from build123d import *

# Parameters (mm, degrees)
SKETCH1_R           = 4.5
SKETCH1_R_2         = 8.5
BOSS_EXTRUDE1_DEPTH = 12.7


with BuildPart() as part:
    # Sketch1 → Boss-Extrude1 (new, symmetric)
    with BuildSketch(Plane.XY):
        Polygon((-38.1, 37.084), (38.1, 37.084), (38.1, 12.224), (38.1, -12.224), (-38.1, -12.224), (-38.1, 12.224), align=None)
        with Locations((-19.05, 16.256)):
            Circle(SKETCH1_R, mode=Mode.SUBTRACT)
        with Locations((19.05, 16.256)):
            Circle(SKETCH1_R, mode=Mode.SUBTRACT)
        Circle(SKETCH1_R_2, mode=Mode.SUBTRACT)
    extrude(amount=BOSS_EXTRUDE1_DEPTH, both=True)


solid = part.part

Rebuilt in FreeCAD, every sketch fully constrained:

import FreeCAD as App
import Part
import Sketcher
from FreeCAD import Vector

doc = App.newDocument("Part")
body = doc.addObject("PartDesign::Body", "Body")

# Sketch on XY plane
sketch1 = body.newObject("Sketcher::SketchObject", "Sketch")
sketch1.AttachmentSupport = (doc.getObject("XY_Plane"), [""])
sketch1.MapMode = "FlatFace"
sketch1.addGeometry(Part.LineSegment(Vector(38.1, 37.1, 0), Vector(-38.1, 37.1, 0)), False)
sketch1.addGeometry(Part.LineSegment(Vector(-38.1, 37.1, 0), Vector(-38.1, -12.2, 0)), False)
sketch1.addGeometry(Part.LineSegment(Vector(-38.1, -12.2, 0), Vector(38.1, -12.2, 0)), False)
sketch1.addGeometry(Part.LineSegment(Vector(38.1, -12.2, 0), Vector(38.1, 37.1, 0)), False)
sketch1.addGeometry(Part.Circle(Vector(0, 0, 0), Vector(0, 0, 1), 8.5), False)
sketch1.addGeometry(Part.Circle(Vector(19.1, 16.3, 0), Vector(0, 0, 1), 4.5), False)
sketch1.addGeometry(Part.Circle(Vector(-19.1, 16.3, 0), Vector(0, 0, 1), 4.5), False)
sketch1.addConstraint(Sketcher.Constraint("Coincident", 0, 2, 1, 1))
sketch1.addConstraint(Sketcher.Constraint("Coincident", 1, 2, 2, 1))
sketch1.addConstraint(Sketcher.Constraint("Coincident", 2, 2, 3, 1))
sketch1.addConstraint(Sketcher.Constraint("Coincident", 3, 2, 0, 1))
sketch1.addConstraint(Sketcher.Constraint("Horizontal", 0))
sketch1.addConstraint(Sketcher.Constraint("Vertical", 1))
sketch1.addConstraint(Sketcher.Constraint("Horizontal", 2))
sketch1.addConstraint(Sketcher.Constraint("Vertical", 3))
sketch1.addConstraint(Sketcher.Constraint("Coincident", 4, 3, -1, 1))
sketch1.addConstraint(Sketcher.Constraint("Equal", 5, 6))
sketch1.addConstraint(Sketcher.Constraint("Symmetric", 5, 3, 6, 3, -2))
sketch1.addConstraint(Sketcher.Constraint("Diameter", 4, 17.0))
sketch1.addConstraint(Sketcher.Constraint("Diameter", 5, 9.0))
sketch1.addConstraint(Sketcher.Constraint("DistanceX", 0, 2, 0, 1, 76.2))
sketch1.addConstraint(Sketcher.Constraint("DistanceX", 0, 2, -1, 1, 38.1))
sketch1.addConstraint(Sketcher.Constraint("DistanceX", 6, 3, 5, 3, 38.1))
sketch1.addConstraint(Sketcher.Constraint("DistanceY", 1, 2, 1, 1, 49.308))
sketch1.addConstraint(Sketcher.Constraint("DistanceY", 1, 2, 6, 3, 28.48))
sketch1.addConstraint(Sketcher.Constraint("DistanceY", -1, 1, 5, 3, 16.256))
pad1 = body.newObject("PartDesign::Pad", "Pad")
pad1.Profile = sketch1
pad1.Length = 25.4
pad1.Midplane = True

doc.recompute()
